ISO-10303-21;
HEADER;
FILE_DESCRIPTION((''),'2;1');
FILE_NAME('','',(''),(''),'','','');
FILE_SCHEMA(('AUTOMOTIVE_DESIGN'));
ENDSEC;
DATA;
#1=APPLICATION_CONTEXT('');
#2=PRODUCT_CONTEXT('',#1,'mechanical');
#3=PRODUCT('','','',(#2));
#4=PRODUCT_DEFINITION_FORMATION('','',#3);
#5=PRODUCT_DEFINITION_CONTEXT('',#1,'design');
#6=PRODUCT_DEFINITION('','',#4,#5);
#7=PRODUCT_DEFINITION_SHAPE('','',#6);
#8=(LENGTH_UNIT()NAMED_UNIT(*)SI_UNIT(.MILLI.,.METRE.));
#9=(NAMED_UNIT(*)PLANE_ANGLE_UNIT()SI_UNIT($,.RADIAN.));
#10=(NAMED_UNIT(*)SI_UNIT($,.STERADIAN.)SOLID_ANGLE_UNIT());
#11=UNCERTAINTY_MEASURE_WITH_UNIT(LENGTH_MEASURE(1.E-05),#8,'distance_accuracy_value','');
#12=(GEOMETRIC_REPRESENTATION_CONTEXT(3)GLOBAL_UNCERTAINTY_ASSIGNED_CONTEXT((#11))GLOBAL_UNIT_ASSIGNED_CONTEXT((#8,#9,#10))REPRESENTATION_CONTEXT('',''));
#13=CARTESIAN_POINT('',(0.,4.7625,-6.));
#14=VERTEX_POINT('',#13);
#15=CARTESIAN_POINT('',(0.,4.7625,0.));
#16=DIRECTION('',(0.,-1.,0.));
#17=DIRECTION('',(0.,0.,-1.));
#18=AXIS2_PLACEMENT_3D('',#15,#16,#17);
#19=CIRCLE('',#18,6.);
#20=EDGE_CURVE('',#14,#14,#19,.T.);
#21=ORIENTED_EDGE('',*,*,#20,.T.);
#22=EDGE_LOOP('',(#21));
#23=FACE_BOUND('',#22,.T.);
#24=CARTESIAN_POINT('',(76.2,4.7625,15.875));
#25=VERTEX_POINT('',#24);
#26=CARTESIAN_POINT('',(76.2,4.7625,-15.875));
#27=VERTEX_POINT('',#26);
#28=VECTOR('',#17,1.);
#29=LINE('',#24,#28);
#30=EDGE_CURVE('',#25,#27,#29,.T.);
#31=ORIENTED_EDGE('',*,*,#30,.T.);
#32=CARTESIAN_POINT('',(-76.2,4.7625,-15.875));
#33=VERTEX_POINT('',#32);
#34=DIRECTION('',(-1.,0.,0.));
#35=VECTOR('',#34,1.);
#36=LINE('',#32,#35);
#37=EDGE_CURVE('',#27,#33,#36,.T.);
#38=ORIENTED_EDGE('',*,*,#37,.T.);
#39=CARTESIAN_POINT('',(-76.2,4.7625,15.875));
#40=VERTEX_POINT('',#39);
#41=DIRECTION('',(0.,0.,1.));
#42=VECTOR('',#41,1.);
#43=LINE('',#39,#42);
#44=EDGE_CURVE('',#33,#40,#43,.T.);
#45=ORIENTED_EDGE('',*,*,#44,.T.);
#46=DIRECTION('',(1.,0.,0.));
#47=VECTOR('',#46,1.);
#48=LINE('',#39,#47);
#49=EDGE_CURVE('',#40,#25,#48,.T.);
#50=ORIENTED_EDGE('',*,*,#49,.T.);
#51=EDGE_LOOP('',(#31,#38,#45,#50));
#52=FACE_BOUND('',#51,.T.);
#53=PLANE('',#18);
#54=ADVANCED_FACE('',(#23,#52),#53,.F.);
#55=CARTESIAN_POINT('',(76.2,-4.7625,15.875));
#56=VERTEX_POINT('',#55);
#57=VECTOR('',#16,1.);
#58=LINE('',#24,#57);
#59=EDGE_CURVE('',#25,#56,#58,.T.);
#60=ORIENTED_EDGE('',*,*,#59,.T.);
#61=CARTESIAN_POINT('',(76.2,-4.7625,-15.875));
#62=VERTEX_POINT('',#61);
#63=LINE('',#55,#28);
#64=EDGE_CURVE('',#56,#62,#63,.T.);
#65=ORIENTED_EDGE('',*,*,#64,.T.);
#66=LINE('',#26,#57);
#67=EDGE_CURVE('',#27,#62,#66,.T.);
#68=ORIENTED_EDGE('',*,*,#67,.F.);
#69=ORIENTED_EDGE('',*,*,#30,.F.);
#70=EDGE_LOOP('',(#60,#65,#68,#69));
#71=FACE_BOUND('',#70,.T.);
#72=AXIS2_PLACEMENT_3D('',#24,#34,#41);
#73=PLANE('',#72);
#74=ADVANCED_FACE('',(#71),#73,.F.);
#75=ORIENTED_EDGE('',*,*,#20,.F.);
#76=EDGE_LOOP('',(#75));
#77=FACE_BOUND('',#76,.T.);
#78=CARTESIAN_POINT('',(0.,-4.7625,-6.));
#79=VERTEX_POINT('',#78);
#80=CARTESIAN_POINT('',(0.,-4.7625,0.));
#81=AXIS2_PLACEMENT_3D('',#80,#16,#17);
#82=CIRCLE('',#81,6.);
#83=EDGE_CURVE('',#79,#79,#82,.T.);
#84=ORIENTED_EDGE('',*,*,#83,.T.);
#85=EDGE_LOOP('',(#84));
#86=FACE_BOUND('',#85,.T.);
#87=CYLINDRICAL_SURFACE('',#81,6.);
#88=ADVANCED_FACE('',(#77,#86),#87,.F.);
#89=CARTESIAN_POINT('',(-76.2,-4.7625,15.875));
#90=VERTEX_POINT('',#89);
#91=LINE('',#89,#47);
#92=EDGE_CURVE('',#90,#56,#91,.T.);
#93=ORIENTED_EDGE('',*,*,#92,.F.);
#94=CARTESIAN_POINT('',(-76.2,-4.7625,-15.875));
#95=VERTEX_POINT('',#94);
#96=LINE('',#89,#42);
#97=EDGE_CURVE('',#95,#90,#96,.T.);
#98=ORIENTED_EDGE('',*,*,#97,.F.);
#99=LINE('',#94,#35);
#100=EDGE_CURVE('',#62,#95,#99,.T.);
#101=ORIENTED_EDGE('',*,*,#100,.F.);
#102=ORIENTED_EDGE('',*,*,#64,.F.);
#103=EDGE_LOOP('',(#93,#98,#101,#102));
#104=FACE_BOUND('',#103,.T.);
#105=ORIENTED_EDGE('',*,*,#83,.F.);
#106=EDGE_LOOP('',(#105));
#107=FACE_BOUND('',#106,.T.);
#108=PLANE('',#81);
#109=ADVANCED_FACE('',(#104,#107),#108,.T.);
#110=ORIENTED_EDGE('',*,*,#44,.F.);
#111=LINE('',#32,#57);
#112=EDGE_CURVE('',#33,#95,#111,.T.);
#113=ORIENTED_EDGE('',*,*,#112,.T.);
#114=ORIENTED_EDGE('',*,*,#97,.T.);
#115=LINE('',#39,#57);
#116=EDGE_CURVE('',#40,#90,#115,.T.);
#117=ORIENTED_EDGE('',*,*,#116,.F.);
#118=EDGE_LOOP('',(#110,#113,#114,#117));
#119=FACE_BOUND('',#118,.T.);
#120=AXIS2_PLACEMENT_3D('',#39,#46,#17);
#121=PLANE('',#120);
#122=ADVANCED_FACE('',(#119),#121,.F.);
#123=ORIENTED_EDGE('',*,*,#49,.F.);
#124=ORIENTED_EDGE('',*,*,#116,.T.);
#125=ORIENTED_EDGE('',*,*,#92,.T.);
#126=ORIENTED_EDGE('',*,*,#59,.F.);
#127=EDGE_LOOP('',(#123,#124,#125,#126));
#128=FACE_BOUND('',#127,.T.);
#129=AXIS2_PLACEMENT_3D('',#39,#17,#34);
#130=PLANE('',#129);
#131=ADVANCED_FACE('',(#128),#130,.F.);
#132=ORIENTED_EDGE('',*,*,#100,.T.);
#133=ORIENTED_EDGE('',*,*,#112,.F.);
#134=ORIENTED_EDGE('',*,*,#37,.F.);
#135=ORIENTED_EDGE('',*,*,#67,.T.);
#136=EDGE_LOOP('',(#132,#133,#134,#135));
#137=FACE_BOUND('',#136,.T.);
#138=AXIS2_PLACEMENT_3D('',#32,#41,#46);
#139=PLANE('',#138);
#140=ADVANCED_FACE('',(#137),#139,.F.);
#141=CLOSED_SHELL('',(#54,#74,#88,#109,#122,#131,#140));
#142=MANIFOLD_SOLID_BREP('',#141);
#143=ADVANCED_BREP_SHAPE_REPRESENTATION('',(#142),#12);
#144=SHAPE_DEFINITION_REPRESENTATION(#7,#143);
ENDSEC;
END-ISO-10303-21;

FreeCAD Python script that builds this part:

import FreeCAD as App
import Part
import Sketcher
Q = App.Units.Quantity

doc = App.newDocument("Part")
body = doc.addObject("PartDesign::Body", "Body")

# Sketch on XZ plane
sketch1 = body.newObject("Sketcher::SketchObject", "Sketch")
sketch1.AttachmentSupport = (doc.getObject("XZ_Plane"), [""])
sketch1.MapMode = "FlatFace"
sketch1.addGeometry(Part.LineSegment(App.Vector(-76, -16, 0), App.Vector(-76, 16, 0)), False)
sketch1.addGeometry(Part.LineSegment(App.Vector(-76, 16, 0), App.Vector(76, 16, 0)), False)
sketch1.addGeometry(Part.LineSegment(App.Vector(76, 16, 0), App.Vector(76, -16, 0)), False)
sketch1.addGeometry(Part.LineSegment(App.Vector(76, -16, 0), App.Vector(-76, -16, 0)), False)
sketch1.addConstraint(Sketcher.Constraint("Coincident", 0, 2, 1, 1))
sketch1.addConstraint(Sketcher.Constraint("Coincident", 1, 2, 2, 1))
sketch1.addConstraint(Sketcher.Constraint("Coincident", 2, 2, 3, 1))
sketch1.addConstraint(Sketcher.Constraint("Coincident", 3, 2, 0, 1))
sketch1.addConstraint(Sketcher.Constraint("Vertical", 0))
sketch1.addConstraint(Sketcher.Constraint("Horizontal", 1))
sketch1.addConstraint(Sketcher.Constraint("Vertical", 2))
sketch1.addConstraint(Sketcher.Constraint("Horizontal", 3))
sketch1.addConstraint(Sketcher.Constraint("Symmetric", 0, 2, 2, 2, -1, 1))
sketch1.addConstraint(Sketcher.Constraint("DistanceX", 1, 1, 1, 2, Q("6 in")))
sketch1.addConstraint(Sketcher.Constraint("DistanceY", 0, 1, 0, 2, Q("1.25 in")))
pad1 = body.newObject("PartDesign::Pad", "Pad")
pad1.Profile = sketch1
pad1.Length = Q("0.375 in")
pad1.Midplane = True

# Sketch on XZ plane
sketch2 = body.newObject("Sketcher::SketchObject", "Sketch001")
sketch2.AttachmentSupport = (doc.getObject("XZ_Plane"), [""])
sketch2.MapMode = "FlatFace"
sketch2.AttachmentOffset = App.Placement(App.Vector(0, 0, 0.1875 * 25.4), App.Rotation())
sketch2.addGeometry(Part.Circle(App.Vector(0, 0, 0), App.Vector(0, 0, 1), 6), False)
sketch2.addConstraint(Sketcher.Constraint("Coincident", 0, 3, -1, 1))
sketch2.addConstraint(Sketcher.Constraint("Diameter", 0, 12.0))
doc.recompute()
hole = body.newObject("PartDesign::Hole", "Hole")
hole.Profile = sketch2
hole.ThreadType = "None"
hole.Diameter = 12
hole.DepthType = "ThroughAll"

doc.recompute()
